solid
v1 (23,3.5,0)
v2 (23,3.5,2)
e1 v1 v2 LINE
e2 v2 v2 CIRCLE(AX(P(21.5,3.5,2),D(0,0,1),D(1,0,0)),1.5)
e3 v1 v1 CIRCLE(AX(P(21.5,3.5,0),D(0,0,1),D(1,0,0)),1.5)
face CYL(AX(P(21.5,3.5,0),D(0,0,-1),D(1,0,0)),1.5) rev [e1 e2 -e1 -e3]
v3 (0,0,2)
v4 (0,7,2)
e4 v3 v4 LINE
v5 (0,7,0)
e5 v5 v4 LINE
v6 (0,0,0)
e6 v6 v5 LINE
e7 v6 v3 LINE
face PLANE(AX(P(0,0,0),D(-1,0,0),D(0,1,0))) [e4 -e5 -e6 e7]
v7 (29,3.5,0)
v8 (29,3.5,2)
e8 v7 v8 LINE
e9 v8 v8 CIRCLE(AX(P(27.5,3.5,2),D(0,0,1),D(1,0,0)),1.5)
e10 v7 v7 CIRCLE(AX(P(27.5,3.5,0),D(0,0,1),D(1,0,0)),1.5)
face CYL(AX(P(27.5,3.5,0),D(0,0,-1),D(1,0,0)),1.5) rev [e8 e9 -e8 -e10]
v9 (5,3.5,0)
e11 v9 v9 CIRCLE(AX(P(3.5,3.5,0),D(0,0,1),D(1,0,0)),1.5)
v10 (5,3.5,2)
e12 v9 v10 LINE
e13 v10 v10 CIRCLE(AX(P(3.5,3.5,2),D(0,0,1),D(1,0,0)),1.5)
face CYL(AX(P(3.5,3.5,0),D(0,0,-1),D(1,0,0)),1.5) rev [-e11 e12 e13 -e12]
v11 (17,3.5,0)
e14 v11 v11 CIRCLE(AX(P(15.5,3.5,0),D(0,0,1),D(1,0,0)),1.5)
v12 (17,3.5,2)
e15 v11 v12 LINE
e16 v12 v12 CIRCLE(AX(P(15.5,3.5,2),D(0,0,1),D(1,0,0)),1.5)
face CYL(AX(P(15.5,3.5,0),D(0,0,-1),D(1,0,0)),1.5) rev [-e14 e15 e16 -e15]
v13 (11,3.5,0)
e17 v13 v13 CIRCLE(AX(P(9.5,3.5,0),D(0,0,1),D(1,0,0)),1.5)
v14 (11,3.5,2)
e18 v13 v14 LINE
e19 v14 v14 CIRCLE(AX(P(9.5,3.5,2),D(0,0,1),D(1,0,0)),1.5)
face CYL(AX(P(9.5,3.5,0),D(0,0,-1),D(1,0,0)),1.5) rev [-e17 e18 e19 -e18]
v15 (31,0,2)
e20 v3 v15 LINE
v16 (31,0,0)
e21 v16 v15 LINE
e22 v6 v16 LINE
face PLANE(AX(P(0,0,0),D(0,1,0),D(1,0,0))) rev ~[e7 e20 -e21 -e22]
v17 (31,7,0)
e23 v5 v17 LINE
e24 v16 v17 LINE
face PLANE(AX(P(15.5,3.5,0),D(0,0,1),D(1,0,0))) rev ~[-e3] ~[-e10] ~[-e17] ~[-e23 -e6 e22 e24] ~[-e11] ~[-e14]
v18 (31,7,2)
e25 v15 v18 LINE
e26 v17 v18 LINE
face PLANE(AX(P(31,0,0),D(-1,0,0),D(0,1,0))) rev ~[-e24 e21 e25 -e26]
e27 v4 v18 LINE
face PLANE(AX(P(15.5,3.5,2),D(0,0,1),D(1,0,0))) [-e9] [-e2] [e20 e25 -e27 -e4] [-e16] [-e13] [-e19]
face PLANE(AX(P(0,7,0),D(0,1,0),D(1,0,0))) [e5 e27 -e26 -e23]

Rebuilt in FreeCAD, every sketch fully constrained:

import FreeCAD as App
import Part
import Sketcher

V = App.Vector


def add_polygon(sketch, points):
    """Adds a closed chain of lines whose ends are joined by coincident constraints."""
    first, n = sketch.GeometryCount, len(points)
    for a, b in zip(points, points[1:] + points[:1]):
        sketch.addGeometry(Part.LineSegment(App.Vector(*a, 0), App.Vector(*b, 0)), False)
    for i in range(n):
        sketch.addConstraint(Sketcher.Constraint("Coincident", first + i, 2, first + (i + 1) % n, 1))

doc = App.newDocument("Part")
body = doc.addObject("PartDesign::Body", "Body")

sketch1 = doc.addObject("Sketcher::SketchObject", "Sketch")
body.addObject(sketch1)
sketch1.AttachmentSupport = (doc.XY_Plane, [""])
sketch1.MapMode = "FlatFace"
sketch1.addGeometry(Part.Circle(V(15.5, 3.5, 0), V(0, 0, 1), 1.5), False)
sketch1.addConstraint([
    Sketcher.Constraint("Diameter", 0, 3.0),
    Sketcher.Constraint("DistanceX", -1, 1, 0, 3, 15.5),
    Sketcher.Constraint("DistanceY", -1, 1, 0, 3, 3.5),
])
pad1 = doc.addObject("PartDesign::Pad", "Pad")
body.addObject(pad1)
pad1.Profile = sketch1
pad1.Length = 2
body2 = doc.addObject("PartDesign::Body", "Body001")

sketch2 = doc.addObject("Sketcher::SketchObject", "Sketch001")
body2.addObject(sketch2)
sketch2.AttachmentSupport = (doc.getObject("XY_Plane001"), [""])
sketch2.MapMode = "FlatFace"
sketch2.addGeometry(Part.Circle(V(21.5, 3.5, 0), V(0, 0, 1), 1.5), False)
sketch2.addConstraint([
    Sketcher.Constraint("Diameter", 0, 3.0),
    Sketcher.Constraint("DistanceX", -1, 1, 0, 3, 21.5),
    Sketcher.Constraint("DistanceY", -1, 1, 0, 3, 3.5),
])
pad2 = doc.addObject("PartDesign::Pad", "Pad001")
body2.addObject(pad2)
pad2.Profile = sketch2
pad2.Length = 2
body3 = doc.addObject("PartDesign::Body", "Body002")

sketch3 = doc.addObject("Sketcher::SketchObject", "Sketch002")
body3.addObject(sketch3)
sketch3.AttachmentSupport = (doc.getObject("XY_Plane002"), [""])
sketch3.MapMode = "FlatFace"
sketch3.addGeometry(Part.Circle(V(9.5, 3.5, 0), V(0, 0, 1), 1.5), False)
sketch3.addConstraint([
    Sketcher.Constraint("Diameter", 0, 3.0),
    Sketcher.Constraint("DistanceX", -1, 1, 0, 3, 9.5),
    Sketcher.Constraint("DistanceY", -1, 1, 0, 3, 3.5),
])
pad3 = doc.addObject("PartDesign::Pad", "Pad002")
body3.addObject(pad3)
pad3.Profile = sketch3
pad3.Length = 2
body4 = doc.addObject("PartDesign::Body", "Body003")

sketch4 = doc.addObject("Sketcher::SketchObject", "Sketch003")
body4.addObject(sketch4)
sketch4.AttachmentSupport = (doc.getObject("XY_Plane003"), [""])
sketch4.MapMode = "FlatFace"
sketch4.addGeometry(Part.Circle(V(27.5, 3.5, 0), V(0, 0, 1), 1.5), False)
sketch4.addConstraint([
    Sketcher.Constraint("Diameter", 0, 3.0),
    Sketcher.Constraint("DistanceX", -1, 1, 0, 3, 27.5),
    Sketcher.Constraint("DistanceY", -1, 1, 0, 3, 3.5),
])
pad4 = doc.addObject("PartDesign::Pad", "Pad003")
body4.addObject(pad4)
pad4.Profile = sketch4
pad4.Length = 2
body5 = doc.addObject("PartDesign::Body", "Body004")

sketch5 = doc.addObject("Sketcher::SketchObject", "Sketch004")
body5.addObject(sketch5)
sketch5.AttachmentSupport = (doc.getObject("XY_Plane004"), [""])
sketch5.MapMode = "FlatFace"
sketch5.addGeometry(Part.Circle(V(3.5, 3.5, 0), V(0, 0, 1), 1.5), False)
sketch5.addConstraint([
    Sketcher.Constraint("Diameter", 0, 3.0),
    Sketcher.Constraint("DistanceX", -1, 1, 0, 3, 3.5),
    Sketcher.Constraint("DistanceY", -1, 1, 0, 3, 3.5),
])
pad5 = doc.addObject("PartDesign::Pad", "Pad004")
body5.addObject(pad5)
pad5.Profile = sketch5
pad5.Length = 2
body6 = doc.addObject("PartDesign::Body", "Body005")

sketch6 = doc.addObject("Sketcher::SketchObject", "Sketch005")
body6.addObject(sketch6)
sketch6.AttachmentSupport = (doc.getObject("XY_Plane005"), [""])
sketch6.MapMode = "FlatFace"
add_polygon(sketch6, [(0, 7), (0, 0), (31, 0), (31, 7)])
sketch6.addConstraint([
    Sketcher.Constraint("Vertical", 0),
    Sketcher.Constraint("Horizontal", 1),
    Sketcher.Constraint("Vertical", 2),
    Sketcher.Constraint("Horizontal", 3),
    Sketcher.Constraint("Coincident", 0, 2, -1, 1),
    Sketcher.Constraint("DistanceX", 1, 1, 1, 2, 31.0),
    Sketcher.Constraint("DistanceY", 0, 2, 0, 1, 7.0),
])
pad6 = doc.addObject("PartDesign::Pad", "Pad005")
body6.addObject(pad6)
pad6.Profile = sketch6
pad6.Length = 2
doc.recompute()

boolean = doc.addObject("PartDesign::Boolean", "Boolean")
body6.addObject(boolean)
boolean.Type = "Cut"
boolean.addObjects([body5])
doc.recompute()

boolean2 = doc.addObject("PartDesign::Boolean", "Boolean001")
body6.addObject(boolean2)
boolean2.Type = "Cut"
boolean2.addObjects([body4])
doc.recompute()

boolean3 = doc.addObject("PartDesign::Boolean", "Boolean002")
body6.addObject(boolean3)
boolean3.Type = "Cut"
boolean3.addObjects([body3])
doc.recompute()

boolean4 = doc.addObject("PartDesign::Boolean", "Boolean003")
body6.addObject(boolean4)
boolean4.Type = "Cut"
boolean4.addObjects([body2])
doc.recompute()

boolean5 = doc.addObject("PartDesign::Boolean", "Boolean004")
body6.addObject(boolean5)
boolean5.Type = "Cut"
boolean5.addObjects([body])

doc.recompute()
